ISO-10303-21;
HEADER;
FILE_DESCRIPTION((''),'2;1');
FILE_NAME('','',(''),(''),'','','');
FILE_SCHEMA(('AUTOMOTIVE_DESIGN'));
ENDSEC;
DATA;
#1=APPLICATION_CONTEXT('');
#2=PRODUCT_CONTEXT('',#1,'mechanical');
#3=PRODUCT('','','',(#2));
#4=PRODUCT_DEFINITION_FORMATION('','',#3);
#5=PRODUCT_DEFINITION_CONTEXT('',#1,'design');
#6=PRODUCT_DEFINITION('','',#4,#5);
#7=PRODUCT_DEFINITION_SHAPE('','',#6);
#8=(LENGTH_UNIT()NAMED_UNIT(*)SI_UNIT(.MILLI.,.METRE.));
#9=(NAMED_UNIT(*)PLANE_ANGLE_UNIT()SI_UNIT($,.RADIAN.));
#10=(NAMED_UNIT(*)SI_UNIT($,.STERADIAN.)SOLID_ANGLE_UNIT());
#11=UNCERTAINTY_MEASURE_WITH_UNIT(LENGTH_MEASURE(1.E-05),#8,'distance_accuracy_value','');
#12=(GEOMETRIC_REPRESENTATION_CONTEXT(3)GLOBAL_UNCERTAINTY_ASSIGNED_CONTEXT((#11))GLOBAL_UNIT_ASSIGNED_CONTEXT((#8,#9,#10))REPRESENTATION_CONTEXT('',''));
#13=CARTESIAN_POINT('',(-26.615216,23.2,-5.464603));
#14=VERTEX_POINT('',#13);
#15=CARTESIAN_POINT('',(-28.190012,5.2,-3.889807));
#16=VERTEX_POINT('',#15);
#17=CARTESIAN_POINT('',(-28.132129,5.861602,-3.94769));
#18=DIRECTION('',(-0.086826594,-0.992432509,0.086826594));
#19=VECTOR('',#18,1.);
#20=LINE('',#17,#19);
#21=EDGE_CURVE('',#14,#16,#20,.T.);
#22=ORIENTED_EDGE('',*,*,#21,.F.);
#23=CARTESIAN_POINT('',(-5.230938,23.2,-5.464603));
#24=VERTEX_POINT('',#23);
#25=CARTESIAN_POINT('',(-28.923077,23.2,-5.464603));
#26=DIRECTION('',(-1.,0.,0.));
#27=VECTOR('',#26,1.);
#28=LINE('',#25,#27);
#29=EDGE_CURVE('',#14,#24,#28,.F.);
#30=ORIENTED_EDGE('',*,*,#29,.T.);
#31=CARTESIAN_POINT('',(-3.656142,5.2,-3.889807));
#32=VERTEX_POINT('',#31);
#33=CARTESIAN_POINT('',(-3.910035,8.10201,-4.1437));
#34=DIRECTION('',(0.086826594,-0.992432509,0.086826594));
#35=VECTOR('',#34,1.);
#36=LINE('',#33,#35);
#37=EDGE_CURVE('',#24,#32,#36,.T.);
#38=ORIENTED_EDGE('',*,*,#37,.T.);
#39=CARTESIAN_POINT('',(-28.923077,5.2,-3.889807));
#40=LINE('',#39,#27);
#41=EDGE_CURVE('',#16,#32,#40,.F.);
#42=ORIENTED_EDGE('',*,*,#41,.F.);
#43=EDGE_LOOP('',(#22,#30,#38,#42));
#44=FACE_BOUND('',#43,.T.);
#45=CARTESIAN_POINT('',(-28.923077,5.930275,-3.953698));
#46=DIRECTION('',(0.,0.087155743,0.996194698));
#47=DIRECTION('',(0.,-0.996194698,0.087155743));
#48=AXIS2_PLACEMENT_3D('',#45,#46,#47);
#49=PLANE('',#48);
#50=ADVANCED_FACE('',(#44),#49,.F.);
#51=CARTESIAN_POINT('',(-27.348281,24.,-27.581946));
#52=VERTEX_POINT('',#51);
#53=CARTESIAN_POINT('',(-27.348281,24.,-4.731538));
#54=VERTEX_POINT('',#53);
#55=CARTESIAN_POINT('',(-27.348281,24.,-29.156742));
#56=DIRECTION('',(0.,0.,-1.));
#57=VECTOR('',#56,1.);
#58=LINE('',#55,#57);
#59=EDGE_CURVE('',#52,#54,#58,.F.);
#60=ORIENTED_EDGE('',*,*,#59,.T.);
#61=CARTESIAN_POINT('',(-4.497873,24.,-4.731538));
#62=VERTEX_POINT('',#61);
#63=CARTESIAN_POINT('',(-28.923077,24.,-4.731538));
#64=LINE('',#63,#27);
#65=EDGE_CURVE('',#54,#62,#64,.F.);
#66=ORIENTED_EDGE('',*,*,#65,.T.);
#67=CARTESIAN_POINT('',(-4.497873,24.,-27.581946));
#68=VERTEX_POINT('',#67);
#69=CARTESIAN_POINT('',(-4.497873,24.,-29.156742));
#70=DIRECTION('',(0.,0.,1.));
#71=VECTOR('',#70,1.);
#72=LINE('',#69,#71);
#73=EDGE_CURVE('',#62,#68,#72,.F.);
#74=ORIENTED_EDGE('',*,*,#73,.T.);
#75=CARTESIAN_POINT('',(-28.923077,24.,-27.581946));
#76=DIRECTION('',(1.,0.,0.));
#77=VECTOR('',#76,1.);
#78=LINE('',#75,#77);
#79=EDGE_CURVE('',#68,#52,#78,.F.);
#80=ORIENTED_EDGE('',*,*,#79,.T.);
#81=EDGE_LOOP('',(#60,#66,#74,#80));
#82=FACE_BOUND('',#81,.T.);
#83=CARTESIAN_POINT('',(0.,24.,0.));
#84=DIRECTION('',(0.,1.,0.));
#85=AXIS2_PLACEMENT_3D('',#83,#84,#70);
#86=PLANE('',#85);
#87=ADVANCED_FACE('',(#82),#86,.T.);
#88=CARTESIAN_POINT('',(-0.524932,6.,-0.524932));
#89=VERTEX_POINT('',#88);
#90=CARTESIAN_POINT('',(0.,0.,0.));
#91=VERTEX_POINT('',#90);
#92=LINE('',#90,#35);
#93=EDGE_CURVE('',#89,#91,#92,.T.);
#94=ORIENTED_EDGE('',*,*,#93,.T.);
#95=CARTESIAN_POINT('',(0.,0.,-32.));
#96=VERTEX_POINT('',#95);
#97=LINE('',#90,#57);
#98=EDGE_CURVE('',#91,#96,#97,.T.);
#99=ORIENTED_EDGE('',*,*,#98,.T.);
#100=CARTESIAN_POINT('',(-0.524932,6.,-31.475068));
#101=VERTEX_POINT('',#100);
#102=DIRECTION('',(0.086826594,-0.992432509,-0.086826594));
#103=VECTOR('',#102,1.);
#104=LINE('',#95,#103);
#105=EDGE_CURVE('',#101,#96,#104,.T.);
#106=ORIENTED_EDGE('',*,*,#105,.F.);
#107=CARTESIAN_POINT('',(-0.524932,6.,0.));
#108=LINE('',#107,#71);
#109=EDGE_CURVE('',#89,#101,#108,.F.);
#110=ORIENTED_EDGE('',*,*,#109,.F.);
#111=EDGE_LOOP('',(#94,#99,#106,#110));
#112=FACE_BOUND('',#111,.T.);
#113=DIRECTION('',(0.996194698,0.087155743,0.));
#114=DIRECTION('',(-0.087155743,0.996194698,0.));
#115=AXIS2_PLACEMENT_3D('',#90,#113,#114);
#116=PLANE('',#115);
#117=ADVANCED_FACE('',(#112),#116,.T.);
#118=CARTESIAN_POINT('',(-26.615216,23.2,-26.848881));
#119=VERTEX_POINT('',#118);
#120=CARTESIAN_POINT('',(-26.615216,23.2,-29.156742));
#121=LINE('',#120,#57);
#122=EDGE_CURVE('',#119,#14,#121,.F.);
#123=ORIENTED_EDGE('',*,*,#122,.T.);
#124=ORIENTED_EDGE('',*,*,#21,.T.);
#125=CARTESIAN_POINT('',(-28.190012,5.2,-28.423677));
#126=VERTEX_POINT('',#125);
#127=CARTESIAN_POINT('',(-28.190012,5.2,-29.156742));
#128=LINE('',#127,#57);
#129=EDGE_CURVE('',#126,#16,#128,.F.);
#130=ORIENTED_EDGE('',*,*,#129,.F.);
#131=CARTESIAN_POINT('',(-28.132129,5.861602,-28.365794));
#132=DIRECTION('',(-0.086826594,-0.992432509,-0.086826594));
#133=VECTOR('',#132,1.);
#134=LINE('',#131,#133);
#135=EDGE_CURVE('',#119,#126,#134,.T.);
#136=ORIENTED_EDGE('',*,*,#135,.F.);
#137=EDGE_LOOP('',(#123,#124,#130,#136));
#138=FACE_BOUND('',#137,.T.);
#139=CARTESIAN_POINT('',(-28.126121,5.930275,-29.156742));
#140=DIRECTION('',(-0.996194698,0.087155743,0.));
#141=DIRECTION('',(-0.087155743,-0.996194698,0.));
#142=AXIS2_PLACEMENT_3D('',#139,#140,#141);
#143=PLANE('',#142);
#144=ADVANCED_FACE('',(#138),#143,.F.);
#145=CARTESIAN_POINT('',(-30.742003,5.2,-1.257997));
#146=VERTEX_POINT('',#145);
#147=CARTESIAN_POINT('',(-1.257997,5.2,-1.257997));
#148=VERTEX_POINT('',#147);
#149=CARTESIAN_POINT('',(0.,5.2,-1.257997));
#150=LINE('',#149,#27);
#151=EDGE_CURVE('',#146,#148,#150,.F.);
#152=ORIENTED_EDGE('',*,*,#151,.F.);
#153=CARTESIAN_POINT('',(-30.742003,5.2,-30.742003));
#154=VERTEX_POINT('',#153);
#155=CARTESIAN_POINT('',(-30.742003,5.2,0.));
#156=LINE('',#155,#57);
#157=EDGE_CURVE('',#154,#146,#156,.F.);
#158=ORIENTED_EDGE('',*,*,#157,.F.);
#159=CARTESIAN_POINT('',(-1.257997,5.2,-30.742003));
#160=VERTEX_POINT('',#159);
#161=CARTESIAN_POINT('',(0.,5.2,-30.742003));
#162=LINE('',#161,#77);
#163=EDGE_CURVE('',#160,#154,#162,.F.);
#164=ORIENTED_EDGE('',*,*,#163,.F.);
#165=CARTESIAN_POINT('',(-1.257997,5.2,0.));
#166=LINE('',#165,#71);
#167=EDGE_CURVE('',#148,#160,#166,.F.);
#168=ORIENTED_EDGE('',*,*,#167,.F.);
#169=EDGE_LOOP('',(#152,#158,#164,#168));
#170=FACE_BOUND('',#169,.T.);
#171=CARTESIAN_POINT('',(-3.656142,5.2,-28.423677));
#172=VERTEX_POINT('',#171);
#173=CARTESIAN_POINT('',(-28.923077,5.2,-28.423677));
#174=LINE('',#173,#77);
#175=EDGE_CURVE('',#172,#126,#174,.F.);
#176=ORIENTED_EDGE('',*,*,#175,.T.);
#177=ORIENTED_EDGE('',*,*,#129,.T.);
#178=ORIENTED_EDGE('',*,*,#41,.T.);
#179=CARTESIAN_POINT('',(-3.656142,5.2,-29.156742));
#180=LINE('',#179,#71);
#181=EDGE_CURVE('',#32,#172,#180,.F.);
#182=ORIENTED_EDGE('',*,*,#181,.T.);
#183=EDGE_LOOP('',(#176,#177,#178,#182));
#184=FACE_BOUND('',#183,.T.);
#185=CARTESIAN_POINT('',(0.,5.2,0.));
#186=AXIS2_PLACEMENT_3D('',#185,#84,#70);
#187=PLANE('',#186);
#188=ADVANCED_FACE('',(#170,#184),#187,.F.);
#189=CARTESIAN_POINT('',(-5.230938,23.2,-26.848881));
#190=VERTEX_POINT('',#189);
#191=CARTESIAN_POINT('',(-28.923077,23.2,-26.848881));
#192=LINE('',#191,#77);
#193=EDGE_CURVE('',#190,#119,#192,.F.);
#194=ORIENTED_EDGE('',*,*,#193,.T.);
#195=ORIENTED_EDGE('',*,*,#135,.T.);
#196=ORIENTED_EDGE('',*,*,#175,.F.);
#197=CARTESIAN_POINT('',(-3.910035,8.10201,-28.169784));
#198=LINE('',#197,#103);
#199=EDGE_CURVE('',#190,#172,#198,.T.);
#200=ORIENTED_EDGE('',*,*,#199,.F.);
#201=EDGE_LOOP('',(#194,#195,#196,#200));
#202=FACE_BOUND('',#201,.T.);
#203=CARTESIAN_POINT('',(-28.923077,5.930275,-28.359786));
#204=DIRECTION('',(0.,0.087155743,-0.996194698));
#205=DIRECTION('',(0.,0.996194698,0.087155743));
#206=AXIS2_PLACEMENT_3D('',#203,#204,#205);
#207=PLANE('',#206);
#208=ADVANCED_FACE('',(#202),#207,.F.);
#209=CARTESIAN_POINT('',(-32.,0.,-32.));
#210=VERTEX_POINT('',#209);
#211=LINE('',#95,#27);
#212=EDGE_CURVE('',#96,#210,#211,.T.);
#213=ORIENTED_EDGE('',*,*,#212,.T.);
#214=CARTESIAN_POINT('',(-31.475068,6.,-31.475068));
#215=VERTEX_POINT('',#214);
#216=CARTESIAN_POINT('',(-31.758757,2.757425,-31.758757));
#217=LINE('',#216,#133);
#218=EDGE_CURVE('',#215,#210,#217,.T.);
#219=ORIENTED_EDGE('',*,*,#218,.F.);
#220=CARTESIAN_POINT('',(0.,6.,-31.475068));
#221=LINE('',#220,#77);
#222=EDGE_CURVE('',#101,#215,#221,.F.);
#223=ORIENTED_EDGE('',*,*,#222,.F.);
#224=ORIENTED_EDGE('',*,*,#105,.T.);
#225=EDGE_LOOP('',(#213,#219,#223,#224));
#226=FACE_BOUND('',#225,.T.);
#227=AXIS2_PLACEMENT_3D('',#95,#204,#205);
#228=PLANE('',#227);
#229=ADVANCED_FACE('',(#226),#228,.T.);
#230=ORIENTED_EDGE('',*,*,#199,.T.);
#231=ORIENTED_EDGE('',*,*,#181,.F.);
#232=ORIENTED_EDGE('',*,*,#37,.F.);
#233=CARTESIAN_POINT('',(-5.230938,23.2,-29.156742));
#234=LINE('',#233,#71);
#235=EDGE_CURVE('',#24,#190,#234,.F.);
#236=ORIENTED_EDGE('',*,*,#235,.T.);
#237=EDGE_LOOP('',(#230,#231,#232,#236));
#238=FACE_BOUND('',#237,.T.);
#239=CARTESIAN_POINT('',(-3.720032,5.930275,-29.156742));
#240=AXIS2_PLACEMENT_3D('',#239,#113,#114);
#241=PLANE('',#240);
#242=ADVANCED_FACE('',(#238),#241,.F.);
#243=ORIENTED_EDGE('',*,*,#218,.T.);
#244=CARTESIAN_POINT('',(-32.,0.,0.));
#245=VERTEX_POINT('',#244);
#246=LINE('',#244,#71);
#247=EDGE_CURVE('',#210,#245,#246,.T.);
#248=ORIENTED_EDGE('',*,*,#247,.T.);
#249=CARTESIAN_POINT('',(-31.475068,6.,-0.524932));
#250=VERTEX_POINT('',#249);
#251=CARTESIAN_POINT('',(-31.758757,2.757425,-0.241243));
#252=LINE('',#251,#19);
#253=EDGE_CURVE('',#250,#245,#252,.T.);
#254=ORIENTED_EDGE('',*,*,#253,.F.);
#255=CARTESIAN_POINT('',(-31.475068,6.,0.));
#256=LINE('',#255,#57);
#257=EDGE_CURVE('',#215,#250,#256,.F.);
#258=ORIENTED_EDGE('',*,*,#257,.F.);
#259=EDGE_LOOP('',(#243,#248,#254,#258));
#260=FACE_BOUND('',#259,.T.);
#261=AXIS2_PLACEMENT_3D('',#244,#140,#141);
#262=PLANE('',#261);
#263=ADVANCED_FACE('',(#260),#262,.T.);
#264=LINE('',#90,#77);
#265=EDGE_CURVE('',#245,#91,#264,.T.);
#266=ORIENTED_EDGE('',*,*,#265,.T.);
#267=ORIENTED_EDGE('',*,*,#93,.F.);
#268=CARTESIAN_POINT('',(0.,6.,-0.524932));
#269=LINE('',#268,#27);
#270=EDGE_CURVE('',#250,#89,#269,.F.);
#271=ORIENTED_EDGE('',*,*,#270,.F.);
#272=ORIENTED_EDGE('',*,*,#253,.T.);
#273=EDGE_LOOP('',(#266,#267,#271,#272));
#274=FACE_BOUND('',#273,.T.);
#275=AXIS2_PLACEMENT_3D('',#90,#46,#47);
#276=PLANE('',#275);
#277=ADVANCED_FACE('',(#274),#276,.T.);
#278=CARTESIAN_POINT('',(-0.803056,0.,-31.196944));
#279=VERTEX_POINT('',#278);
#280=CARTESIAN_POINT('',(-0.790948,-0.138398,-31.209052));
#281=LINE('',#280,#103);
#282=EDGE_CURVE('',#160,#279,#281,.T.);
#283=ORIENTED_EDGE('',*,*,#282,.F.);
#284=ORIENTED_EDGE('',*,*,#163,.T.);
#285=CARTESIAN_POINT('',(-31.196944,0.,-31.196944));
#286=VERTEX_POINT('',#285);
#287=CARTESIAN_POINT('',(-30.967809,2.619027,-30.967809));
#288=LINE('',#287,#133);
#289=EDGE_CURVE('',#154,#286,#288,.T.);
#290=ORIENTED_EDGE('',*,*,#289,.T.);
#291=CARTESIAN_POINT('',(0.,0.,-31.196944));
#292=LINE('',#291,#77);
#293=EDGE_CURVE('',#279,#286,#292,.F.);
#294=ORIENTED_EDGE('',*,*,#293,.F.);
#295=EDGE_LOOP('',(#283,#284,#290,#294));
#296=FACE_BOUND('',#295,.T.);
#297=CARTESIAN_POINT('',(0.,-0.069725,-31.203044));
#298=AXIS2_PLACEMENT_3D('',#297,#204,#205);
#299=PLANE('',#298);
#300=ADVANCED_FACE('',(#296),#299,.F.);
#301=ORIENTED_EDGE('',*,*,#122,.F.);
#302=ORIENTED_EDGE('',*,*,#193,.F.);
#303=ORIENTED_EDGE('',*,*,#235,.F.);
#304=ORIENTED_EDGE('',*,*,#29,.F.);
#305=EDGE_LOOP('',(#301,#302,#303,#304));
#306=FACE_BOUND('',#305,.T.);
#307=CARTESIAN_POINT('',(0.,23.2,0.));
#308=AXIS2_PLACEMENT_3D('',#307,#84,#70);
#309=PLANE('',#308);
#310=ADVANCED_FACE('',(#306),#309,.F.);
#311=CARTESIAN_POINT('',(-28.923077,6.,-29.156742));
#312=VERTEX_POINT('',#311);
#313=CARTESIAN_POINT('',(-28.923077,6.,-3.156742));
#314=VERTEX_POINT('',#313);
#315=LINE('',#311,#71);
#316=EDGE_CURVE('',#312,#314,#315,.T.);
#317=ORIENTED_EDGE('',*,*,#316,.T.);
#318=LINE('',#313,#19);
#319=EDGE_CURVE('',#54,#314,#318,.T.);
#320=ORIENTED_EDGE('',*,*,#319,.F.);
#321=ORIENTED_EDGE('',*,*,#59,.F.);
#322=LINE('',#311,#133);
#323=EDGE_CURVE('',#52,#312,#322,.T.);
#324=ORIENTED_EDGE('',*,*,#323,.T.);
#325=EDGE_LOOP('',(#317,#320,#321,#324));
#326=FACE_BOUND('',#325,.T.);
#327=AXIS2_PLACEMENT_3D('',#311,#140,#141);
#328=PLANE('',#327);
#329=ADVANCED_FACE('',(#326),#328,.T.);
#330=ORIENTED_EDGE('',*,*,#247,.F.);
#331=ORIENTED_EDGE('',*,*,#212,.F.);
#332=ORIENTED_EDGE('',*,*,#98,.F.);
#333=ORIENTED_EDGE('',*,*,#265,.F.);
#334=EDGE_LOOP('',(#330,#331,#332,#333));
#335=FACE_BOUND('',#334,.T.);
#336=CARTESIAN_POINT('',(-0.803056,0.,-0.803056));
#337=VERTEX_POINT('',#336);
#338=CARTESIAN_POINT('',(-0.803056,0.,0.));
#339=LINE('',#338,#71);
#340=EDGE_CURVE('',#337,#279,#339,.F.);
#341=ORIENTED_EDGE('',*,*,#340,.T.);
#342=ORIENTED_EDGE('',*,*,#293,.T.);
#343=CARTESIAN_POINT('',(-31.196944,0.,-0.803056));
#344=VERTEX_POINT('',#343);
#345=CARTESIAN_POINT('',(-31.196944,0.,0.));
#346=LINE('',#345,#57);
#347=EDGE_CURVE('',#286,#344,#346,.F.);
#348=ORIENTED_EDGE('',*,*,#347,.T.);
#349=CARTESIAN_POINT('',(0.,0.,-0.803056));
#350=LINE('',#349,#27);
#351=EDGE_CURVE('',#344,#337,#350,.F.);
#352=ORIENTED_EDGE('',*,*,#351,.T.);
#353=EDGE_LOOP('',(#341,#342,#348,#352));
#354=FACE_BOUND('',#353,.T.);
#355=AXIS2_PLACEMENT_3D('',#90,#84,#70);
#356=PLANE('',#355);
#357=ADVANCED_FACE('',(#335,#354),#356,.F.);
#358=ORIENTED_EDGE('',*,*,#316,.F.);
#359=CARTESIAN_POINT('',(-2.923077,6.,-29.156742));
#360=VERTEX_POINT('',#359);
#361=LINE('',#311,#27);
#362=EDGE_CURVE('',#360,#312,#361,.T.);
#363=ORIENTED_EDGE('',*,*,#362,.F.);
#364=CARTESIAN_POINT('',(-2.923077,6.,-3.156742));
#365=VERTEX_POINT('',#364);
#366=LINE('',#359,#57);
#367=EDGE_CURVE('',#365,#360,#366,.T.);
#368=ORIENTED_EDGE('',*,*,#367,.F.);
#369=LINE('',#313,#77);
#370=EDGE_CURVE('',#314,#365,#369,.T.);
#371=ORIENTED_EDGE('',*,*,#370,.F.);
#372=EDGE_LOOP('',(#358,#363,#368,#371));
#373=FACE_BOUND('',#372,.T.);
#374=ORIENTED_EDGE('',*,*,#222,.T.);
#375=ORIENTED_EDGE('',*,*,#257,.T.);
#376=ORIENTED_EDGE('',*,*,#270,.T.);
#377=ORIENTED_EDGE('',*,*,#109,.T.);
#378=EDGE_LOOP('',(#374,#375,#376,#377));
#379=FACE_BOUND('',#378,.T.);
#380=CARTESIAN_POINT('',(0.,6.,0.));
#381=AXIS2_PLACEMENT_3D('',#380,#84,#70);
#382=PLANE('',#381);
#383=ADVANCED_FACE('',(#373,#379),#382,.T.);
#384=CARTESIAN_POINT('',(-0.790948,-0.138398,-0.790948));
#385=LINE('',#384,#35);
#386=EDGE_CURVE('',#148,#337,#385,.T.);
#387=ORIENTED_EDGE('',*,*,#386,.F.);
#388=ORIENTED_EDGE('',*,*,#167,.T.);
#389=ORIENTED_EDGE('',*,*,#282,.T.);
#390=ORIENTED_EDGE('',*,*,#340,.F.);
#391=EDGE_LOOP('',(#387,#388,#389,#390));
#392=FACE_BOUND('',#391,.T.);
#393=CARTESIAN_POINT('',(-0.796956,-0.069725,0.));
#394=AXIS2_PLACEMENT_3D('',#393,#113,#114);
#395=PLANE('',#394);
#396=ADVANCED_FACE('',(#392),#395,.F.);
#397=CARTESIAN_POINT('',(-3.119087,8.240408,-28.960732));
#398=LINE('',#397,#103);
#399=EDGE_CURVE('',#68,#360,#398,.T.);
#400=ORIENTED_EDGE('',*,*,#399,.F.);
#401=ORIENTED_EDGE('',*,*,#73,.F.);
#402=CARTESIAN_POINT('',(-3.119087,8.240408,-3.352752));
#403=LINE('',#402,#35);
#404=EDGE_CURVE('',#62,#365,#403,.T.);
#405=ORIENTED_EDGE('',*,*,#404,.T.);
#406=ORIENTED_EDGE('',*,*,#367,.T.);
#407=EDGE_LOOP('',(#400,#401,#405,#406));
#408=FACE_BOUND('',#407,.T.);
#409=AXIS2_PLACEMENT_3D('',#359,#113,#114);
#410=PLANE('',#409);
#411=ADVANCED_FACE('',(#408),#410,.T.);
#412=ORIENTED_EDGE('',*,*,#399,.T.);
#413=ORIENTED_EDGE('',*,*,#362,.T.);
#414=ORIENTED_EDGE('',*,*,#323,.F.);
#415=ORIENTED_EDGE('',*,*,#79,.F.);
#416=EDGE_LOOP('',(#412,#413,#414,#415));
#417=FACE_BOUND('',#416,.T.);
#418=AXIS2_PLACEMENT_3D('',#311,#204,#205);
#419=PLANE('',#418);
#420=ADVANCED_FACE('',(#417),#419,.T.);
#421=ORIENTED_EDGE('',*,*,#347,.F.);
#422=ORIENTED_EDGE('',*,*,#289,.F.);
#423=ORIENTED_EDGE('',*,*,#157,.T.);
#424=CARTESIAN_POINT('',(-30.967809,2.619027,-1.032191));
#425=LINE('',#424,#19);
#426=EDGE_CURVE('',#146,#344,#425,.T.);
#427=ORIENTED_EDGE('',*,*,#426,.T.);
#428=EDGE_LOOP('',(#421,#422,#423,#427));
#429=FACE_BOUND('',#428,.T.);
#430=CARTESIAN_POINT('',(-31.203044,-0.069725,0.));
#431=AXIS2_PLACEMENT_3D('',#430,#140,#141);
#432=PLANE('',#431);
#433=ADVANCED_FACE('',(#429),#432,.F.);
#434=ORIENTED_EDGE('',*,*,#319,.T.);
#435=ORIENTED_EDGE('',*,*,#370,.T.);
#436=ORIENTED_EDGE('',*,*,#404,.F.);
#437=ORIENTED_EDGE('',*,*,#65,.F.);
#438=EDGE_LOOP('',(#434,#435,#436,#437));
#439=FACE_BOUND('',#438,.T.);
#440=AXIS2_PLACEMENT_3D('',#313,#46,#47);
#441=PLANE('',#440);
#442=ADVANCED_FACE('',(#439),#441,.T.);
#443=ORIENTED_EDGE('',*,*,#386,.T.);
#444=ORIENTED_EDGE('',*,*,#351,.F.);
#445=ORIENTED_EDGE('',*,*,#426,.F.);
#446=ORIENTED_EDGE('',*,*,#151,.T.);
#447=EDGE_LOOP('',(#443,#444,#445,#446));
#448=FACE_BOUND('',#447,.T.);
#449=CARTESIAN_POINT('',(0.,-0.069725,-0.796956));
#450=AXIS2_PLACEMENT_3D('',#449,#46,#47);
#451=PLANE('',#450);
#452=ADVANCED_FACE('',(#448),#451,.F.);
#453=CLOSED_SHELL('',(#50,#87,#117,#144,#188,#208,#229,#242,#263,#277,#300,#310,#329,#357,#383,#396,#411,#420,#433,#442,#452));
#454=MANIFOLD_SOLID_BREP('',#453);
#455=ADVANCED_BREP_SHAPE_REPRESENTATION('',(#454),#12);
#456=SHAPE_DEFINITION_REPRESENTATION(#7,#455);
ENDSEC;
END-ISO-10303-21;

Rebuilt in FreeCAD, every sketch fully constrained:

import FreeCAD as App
import Part
import Sketcher

V = App.Vector
Q = App.Units.Quantity


def faces_at(feature, points):
    """Names of the faces that lie closest to the given points."""
    faces = feature.Shape.Faces
    near = lambda p: min(range(len(faces)), key=lambda i: faces[i].distToShape(Part.Vertex(*p))[0])
    return sorted({f"Face{near(p) + 1}" for p in points})


def add_polygon(sketch, points):
    """Adds a closed chain of lines whose ends are joined by coincident constraints."""
    first, n = sketch.GeometryCount, len(points)
    for a, b in zip(points, points[1:] + points[:1]):
        sketch.addGeometry(Part.LineSegment(App.Vector(*a, 0), App.Vector(*b, 0)), False)
    for i in range(n):
        sketch.addConstraint(Sketcher.Constraint("Coincident", first + i, 2, first + (i + 1) % n, 1))

doc = App.newDocument("Part")
body = doc.addObject("PartDesign::Body", "Body")

sketch1 = doc.addObject("Sketcher::SketchObject", "Sketch")
body.addObject(sketch1)
sketch1.AttachmentSupport = (doc.XZ_Plane, [""])
sketch1.MapMode = "FlatFace"
add_polygon(sketch1, [(-32, -32), (-32, 0), (0, 0), (0, -32)])
sketch1.addConstraint([
    Sketcher.Constraint("Vertical", 0),
    Sketcher.Constraint("Horizontal", 1),
    Sketcher.Constraint("Vertical", 2),
    Sketcher.Constraint("Horizontal", 3),
    Sketcher.Constraint("Coincident", 1, 2, -1, 1),
    Sketcher.Constraint("Equal", 3, 0),
    Sketcher.Constraint("DistanceX", 1, 1, 1, 2, Q("32 mm")),
])
pad1 = doc.addObject("PartDesign::Pad", "Pad")
body.addObject(pad1)
pad1.Profile = sketch1
pad1.Length = 6
pad1.Reversed = True
pad1.TaperAngle = -5

sketch2 = doc.addObject("Sketcher::SketchObject", "Sketch001")
body.addObject(sketch2)
sketch2.AttachmentSupport = (doc.XZ_Plane, [""])
sketch2.MapMode = "FlatFace"
sketch2.AttachmentOffset = App.Placement(V(0, 0, -6), App.Rotation())
add_polygon(sketch2, [(-28.923077, -29.156742), (-28.923077, -3.156742), (-2.923077, -3.156742), (-2.923077, -29.156742)])
sketch2.addConstraint([
    Sketcher.Constraint("Vertical", 0),
    Sketcher.Constraint("Horizontal", 1),
    Sketcher.Constraint("Vertical", 2),
    Sketcher.Constraint("Horizontal", 3),
    Sketcher.Constraint("Equal", 3, 0),
    Sketcher.Constraint("DistanceX", 1, 1, 1, 2, Q("26 mm")),
    Sketcher.Constraint("DistanceX", 0, 2, -1, 1, Q("28.923077 mm")),
    Sketcher.Constraint("DistanceY", 0, 2, -1, 1, Q("3.156742 mm")),
])
pad2 = doc.addObject("PartDesign::Pad", "Pad001")
body.addObject(pad2)
pad2.Profile = sketch2
pad2.Length = 18
pad2.Reversed = True
pad2.TaperAngle = -5
doc.recompute()

thickness = doc.addObject("PartDesign::Thickness", "Thickness")
body.addObject(thickness)
thickness.Base = (pad2, faces_at(pad2, [(-16, 0, -16)]))
thickness.Value = 0.8
thickness.Reversed = True
thickness.Join = "Intersection"

doc.recompute()
